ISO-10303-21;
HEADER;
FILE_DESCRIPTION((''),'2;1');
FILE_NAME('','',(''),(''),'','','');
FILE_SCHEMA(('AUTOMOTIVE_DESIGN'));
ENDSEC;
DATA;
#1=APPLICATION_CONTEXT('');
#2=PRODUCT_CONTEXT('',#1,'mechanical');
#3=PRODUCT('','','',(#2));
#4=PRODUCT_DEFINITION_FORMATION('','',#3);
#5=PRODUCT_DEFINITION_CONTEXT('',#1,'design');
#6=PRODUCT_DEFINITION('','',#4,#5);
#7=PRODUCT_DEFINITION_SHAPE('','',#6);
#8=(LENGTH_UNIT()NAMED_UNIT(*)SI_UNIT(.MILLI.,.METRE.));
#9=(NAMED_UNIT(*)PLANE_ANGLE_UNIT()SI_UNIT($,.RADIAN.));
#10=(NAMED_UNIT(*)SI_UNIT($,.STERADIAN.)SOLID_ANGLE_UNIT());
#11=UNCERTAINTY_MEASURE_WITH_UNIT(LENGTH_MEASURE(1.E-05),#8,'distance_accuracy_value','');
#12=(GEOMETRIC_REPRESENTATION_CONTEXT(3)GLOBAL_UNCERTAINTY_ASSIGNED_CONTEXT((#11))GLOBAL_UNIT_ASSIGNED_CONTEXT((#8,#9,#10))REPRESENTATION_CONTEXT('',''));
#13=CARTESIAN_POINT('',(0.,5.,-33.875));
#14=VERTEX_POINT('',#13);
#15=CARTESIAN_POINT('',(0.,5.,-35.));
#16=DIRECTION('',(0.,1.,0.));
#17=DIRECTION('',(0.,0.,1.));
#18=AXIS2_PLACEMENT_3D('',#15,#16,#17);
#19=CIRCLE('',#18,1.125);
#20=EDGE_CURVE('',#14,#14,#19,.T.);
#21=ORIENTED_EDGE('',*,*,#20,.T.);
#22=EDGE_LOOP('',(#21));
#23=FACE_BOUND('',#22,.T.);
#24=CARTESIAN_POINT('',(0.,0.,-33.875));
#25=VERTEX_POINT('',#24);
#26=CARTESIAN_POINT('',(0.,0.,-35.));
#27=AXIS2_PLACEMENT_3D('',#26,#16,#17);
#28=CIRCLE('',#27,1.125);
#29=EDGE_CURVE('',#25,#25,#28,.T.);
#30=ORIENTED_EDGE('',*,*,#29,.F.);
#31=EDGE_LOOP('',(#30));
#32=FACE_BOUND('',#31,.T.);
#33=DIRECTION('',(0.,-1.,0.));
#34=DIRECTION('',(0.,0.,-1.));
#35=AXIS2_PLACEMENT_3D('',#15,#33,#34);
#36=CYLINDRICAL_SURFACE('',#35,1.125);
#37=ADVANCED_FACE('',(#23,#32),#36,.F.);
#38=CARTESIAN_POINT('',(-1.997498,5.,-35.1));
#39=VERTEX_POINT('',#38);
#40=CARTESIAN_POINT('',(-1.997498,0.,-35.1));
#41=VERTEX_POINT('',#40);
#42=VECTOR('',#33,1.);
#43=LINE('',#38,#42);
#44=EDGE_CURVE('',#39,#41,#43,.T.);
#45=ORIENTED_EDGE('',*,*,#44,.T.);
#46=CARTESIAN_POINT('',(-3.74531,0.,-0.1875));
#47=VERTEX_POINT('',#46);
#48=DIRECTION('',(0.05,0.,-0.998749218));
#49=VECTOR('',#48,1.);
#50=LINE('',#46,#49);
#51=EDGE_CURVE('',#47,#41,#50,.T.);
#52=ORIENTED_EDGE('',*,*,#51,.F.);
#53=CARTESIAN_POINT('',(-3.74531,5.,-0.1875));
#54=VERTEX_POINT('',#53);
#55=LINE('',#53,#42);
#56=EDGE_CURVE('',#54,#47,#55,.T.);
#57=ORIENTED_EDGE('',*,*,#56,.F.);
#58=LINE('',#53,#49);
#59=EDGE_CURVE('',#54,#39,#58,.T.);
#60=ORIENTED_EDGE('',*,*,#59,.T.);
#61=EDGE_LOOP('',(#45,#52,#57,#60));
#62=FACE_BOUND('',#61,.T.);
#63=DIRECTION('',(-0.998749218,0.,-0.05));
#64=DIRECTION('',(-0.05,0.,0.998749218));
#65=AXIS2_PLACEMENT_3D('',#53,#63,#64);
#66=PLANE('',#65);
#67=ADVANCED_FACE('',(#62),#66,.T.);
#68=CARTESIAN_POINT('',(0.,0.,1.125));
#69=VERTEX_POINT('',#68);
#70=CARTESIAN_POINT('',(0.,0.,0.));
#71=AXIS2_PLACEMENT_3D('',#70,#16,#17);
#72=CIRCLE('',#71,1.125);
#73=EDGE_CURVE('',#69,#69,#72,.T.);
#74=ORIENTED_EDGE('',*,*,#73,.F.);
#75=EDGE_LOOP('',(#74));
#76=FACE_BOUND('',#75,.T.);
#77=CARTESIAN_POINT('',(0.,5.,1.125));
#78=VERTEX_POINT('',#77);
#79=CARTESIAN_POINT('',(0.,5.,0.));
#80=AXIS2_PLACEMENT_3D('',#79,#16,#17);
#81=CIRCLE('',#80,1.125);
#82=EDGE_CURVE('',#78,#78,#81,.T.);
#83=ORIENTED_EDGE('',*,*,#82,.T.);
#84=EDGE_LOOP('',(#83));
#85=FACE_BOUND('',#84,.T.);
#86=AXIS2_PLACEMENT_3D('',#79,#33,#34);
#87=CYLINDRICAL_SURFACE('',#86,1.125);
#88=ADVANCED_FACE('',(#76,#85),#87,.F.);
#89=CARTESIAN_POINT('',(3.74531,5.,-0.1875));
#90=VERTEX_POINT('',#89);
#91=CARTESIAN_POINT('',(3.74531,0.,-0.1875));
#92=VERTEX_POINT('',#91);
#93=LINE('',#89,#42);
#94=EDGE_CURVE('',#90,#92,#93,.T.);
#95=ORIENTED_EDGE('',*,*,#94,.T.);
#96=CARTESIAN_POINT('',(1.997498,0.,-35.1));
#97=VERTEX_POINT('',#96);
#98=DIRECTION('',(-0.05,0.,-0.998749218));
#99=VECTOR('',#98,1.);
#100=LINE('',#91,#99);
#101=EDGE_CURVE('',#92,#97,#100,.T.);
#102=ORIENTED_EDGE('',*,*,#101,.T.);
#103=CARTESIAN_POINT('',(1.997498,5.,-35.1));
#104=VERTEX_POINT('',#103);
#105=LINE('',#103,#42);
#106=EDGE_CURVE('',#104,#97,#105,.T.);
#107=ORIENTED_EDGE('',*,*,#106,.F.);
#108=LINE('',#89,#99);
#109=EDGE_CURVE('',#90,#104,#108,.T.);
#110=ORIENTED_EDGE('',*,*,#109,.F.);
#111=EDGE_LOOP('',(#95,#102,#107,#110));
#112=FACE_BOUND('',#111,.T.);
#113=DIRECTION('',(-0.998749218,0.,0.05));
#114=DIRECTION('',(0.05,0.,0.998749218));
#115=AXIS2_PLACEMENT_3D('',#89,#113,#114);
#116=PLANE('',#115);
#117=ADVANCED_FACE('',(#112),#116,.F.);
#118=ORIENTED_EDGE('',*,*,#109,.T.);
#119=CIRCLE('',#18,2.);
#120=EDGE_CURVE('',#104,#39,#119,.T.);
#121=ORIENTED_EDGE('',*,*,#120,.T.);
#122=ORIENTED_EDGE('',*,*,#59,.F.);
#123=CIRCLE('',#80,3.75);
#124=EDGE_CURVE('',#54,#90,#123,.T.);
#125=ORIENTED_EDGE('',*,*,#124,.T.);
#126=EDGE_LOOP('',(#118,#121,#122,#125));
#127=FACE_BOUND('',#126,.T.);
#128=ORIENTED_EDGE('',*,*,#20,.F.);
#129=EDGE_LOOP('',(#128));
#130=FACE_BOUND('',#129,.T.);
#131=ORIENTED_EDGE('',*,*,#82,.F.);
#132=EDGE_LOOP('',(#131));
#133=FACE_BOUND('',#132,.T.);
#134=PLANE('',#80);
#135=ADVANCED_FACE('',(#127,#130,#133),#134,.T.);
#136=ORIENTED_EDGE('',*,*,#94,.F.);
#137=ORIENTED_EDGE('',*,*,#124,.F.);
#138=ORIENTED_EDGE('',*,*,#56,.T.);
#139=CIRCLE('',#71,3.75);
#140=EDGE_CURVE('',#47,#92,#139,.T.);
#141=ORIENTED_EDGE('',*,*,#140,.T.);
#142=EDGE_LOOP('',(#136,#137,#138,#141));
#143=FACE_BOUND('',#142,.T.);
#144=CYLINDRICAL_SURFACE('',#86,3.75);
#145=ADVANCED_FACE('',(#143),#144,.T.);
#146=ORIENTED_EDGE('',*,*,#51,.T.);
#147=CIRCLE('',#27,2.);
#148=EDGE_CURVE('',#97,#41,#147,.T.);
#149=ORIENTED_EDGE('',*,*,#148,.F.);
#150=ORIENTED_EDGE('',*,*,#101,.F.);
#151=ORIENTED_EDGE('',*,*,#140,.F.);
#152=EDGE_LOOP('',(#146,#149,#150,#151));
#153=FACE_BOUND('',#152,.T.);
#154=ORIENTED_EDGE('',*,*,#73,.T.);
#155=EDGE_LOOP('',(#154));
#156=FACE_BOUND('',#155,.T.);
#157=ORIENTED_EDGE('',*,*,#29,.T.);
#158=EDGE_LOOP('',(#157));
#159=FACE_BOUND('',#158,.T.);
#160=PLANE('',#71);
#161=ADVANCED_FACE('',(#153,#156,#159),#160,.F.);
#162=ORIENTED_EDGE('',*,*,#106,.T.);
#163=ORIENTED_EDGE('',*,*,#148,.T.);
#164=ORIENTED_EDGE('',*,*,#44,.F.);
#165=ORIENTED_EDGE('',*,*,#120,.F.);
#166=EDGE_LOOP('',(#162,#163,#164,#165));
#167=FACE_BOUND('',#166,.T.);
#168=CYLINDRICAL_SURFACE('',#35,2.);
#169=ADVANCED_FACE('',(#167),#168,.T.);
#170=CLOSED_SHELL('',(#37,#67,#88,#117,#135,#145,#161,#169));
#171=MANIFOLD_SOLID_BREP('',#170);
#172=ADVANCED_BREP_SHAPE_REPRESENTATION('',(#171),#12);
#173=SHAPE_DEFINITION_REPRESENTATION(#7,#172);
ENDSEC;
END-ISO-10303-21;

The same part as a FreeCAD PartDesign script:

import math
import FreeCAD as App
import Part
import Sketcher

doc = App.newDocument("Part")
body = doc.addObject("PartDesign::Body", "Body")

# Sketch on XZ plane
sketch1 = body.newObject("Sketcher::SketchObject", "Sketch")
sketch1.AttachmentSupport = (doc.getObject("XZ_Plane"), [""])
sketch1.MapMode = "FlatFace"
sketch1.addGeometry(Part.ArcOfCircle(Part.Circle(App.Vector(0, 0, 0), App.Vector(0, 0, 1), 3.8), math.radians(-3), math.radians(183)), False)
sketch1.addGeometry(Part.LineSegment(App.Vector(3.7, -0.2, 0), App.Vector(2, -35.1, 0)), False)
sketch1.addGeometry(Part.ArcOfCircle(Part.Circle(App.Vector(0, -35, 0), App.Vector(0, 0, 1), 2), math.radians(-177), math.radians(-3)), False)
sketch1.addGeometry(Part.LineSegment(App.Vector(-2, -35.1, 0), App.Vector(-3.7, -0.2, 0)), False)
sketch1.addGeometry(Part.Circle(App.Vector(0, 0, 0), App.Vector(0, 0, 1), 1.1), False)
sketch1.addGeometry(Part.Circle(App.Vector(0, -35, 0), App.Vector(0, 0, 1), 1.1), False)
sketch1.addConstraint(Sketcher.Constraint("Tangent", 0, 1, 1, 1))
sketch1.addConstraint(Sketcher.Constraint("Tangent", 1, 2, 2, 2))
sketch1.addConstraint(Sketcher.Constraint("Tangent", 2, 1, 3, 1))
sketch1.addConstraint(Sketcher.Constraint("Tangent", 3, 2, 0, 2))
sketch1.addConstraint(Sketcher.Constraint("Coincident", 0, 3, -1, 1))
sketch1.addConstraint(Sketcher.Constraint("Coincident", 4, 3, -1, 1))
sketch1.addConstraint(Sketcher.Constraint("Coincident", 5, 3, 2, 3))
sketch1.addConstraint(Sketcher.Constraint("Equal", 4, 5))
sketch1.addConstraint(Sketcher.Constraint("PointOnObject", 2, 3, -2))
sketch1.addConstraint(Sketcher.Constraint("Radius", 2, 2.0))
sketch1.addConstraint(Sketcher.Constraint("Diameter", 4, 2.25))
sketch1.addConstraint(Sketcher.Constraint("Radius", 0, 3.75))
sketch1.addConstraint(Sketcher.Constraint("DistanceY", 2, 3, -1, 1, 35.0))
pad1 = body.newObject("PartDesign::Pad", "Pad")
pad1.Profile = sketch1
pad1.Length = 5
pad1.Reversed = True

doc.recompute()
